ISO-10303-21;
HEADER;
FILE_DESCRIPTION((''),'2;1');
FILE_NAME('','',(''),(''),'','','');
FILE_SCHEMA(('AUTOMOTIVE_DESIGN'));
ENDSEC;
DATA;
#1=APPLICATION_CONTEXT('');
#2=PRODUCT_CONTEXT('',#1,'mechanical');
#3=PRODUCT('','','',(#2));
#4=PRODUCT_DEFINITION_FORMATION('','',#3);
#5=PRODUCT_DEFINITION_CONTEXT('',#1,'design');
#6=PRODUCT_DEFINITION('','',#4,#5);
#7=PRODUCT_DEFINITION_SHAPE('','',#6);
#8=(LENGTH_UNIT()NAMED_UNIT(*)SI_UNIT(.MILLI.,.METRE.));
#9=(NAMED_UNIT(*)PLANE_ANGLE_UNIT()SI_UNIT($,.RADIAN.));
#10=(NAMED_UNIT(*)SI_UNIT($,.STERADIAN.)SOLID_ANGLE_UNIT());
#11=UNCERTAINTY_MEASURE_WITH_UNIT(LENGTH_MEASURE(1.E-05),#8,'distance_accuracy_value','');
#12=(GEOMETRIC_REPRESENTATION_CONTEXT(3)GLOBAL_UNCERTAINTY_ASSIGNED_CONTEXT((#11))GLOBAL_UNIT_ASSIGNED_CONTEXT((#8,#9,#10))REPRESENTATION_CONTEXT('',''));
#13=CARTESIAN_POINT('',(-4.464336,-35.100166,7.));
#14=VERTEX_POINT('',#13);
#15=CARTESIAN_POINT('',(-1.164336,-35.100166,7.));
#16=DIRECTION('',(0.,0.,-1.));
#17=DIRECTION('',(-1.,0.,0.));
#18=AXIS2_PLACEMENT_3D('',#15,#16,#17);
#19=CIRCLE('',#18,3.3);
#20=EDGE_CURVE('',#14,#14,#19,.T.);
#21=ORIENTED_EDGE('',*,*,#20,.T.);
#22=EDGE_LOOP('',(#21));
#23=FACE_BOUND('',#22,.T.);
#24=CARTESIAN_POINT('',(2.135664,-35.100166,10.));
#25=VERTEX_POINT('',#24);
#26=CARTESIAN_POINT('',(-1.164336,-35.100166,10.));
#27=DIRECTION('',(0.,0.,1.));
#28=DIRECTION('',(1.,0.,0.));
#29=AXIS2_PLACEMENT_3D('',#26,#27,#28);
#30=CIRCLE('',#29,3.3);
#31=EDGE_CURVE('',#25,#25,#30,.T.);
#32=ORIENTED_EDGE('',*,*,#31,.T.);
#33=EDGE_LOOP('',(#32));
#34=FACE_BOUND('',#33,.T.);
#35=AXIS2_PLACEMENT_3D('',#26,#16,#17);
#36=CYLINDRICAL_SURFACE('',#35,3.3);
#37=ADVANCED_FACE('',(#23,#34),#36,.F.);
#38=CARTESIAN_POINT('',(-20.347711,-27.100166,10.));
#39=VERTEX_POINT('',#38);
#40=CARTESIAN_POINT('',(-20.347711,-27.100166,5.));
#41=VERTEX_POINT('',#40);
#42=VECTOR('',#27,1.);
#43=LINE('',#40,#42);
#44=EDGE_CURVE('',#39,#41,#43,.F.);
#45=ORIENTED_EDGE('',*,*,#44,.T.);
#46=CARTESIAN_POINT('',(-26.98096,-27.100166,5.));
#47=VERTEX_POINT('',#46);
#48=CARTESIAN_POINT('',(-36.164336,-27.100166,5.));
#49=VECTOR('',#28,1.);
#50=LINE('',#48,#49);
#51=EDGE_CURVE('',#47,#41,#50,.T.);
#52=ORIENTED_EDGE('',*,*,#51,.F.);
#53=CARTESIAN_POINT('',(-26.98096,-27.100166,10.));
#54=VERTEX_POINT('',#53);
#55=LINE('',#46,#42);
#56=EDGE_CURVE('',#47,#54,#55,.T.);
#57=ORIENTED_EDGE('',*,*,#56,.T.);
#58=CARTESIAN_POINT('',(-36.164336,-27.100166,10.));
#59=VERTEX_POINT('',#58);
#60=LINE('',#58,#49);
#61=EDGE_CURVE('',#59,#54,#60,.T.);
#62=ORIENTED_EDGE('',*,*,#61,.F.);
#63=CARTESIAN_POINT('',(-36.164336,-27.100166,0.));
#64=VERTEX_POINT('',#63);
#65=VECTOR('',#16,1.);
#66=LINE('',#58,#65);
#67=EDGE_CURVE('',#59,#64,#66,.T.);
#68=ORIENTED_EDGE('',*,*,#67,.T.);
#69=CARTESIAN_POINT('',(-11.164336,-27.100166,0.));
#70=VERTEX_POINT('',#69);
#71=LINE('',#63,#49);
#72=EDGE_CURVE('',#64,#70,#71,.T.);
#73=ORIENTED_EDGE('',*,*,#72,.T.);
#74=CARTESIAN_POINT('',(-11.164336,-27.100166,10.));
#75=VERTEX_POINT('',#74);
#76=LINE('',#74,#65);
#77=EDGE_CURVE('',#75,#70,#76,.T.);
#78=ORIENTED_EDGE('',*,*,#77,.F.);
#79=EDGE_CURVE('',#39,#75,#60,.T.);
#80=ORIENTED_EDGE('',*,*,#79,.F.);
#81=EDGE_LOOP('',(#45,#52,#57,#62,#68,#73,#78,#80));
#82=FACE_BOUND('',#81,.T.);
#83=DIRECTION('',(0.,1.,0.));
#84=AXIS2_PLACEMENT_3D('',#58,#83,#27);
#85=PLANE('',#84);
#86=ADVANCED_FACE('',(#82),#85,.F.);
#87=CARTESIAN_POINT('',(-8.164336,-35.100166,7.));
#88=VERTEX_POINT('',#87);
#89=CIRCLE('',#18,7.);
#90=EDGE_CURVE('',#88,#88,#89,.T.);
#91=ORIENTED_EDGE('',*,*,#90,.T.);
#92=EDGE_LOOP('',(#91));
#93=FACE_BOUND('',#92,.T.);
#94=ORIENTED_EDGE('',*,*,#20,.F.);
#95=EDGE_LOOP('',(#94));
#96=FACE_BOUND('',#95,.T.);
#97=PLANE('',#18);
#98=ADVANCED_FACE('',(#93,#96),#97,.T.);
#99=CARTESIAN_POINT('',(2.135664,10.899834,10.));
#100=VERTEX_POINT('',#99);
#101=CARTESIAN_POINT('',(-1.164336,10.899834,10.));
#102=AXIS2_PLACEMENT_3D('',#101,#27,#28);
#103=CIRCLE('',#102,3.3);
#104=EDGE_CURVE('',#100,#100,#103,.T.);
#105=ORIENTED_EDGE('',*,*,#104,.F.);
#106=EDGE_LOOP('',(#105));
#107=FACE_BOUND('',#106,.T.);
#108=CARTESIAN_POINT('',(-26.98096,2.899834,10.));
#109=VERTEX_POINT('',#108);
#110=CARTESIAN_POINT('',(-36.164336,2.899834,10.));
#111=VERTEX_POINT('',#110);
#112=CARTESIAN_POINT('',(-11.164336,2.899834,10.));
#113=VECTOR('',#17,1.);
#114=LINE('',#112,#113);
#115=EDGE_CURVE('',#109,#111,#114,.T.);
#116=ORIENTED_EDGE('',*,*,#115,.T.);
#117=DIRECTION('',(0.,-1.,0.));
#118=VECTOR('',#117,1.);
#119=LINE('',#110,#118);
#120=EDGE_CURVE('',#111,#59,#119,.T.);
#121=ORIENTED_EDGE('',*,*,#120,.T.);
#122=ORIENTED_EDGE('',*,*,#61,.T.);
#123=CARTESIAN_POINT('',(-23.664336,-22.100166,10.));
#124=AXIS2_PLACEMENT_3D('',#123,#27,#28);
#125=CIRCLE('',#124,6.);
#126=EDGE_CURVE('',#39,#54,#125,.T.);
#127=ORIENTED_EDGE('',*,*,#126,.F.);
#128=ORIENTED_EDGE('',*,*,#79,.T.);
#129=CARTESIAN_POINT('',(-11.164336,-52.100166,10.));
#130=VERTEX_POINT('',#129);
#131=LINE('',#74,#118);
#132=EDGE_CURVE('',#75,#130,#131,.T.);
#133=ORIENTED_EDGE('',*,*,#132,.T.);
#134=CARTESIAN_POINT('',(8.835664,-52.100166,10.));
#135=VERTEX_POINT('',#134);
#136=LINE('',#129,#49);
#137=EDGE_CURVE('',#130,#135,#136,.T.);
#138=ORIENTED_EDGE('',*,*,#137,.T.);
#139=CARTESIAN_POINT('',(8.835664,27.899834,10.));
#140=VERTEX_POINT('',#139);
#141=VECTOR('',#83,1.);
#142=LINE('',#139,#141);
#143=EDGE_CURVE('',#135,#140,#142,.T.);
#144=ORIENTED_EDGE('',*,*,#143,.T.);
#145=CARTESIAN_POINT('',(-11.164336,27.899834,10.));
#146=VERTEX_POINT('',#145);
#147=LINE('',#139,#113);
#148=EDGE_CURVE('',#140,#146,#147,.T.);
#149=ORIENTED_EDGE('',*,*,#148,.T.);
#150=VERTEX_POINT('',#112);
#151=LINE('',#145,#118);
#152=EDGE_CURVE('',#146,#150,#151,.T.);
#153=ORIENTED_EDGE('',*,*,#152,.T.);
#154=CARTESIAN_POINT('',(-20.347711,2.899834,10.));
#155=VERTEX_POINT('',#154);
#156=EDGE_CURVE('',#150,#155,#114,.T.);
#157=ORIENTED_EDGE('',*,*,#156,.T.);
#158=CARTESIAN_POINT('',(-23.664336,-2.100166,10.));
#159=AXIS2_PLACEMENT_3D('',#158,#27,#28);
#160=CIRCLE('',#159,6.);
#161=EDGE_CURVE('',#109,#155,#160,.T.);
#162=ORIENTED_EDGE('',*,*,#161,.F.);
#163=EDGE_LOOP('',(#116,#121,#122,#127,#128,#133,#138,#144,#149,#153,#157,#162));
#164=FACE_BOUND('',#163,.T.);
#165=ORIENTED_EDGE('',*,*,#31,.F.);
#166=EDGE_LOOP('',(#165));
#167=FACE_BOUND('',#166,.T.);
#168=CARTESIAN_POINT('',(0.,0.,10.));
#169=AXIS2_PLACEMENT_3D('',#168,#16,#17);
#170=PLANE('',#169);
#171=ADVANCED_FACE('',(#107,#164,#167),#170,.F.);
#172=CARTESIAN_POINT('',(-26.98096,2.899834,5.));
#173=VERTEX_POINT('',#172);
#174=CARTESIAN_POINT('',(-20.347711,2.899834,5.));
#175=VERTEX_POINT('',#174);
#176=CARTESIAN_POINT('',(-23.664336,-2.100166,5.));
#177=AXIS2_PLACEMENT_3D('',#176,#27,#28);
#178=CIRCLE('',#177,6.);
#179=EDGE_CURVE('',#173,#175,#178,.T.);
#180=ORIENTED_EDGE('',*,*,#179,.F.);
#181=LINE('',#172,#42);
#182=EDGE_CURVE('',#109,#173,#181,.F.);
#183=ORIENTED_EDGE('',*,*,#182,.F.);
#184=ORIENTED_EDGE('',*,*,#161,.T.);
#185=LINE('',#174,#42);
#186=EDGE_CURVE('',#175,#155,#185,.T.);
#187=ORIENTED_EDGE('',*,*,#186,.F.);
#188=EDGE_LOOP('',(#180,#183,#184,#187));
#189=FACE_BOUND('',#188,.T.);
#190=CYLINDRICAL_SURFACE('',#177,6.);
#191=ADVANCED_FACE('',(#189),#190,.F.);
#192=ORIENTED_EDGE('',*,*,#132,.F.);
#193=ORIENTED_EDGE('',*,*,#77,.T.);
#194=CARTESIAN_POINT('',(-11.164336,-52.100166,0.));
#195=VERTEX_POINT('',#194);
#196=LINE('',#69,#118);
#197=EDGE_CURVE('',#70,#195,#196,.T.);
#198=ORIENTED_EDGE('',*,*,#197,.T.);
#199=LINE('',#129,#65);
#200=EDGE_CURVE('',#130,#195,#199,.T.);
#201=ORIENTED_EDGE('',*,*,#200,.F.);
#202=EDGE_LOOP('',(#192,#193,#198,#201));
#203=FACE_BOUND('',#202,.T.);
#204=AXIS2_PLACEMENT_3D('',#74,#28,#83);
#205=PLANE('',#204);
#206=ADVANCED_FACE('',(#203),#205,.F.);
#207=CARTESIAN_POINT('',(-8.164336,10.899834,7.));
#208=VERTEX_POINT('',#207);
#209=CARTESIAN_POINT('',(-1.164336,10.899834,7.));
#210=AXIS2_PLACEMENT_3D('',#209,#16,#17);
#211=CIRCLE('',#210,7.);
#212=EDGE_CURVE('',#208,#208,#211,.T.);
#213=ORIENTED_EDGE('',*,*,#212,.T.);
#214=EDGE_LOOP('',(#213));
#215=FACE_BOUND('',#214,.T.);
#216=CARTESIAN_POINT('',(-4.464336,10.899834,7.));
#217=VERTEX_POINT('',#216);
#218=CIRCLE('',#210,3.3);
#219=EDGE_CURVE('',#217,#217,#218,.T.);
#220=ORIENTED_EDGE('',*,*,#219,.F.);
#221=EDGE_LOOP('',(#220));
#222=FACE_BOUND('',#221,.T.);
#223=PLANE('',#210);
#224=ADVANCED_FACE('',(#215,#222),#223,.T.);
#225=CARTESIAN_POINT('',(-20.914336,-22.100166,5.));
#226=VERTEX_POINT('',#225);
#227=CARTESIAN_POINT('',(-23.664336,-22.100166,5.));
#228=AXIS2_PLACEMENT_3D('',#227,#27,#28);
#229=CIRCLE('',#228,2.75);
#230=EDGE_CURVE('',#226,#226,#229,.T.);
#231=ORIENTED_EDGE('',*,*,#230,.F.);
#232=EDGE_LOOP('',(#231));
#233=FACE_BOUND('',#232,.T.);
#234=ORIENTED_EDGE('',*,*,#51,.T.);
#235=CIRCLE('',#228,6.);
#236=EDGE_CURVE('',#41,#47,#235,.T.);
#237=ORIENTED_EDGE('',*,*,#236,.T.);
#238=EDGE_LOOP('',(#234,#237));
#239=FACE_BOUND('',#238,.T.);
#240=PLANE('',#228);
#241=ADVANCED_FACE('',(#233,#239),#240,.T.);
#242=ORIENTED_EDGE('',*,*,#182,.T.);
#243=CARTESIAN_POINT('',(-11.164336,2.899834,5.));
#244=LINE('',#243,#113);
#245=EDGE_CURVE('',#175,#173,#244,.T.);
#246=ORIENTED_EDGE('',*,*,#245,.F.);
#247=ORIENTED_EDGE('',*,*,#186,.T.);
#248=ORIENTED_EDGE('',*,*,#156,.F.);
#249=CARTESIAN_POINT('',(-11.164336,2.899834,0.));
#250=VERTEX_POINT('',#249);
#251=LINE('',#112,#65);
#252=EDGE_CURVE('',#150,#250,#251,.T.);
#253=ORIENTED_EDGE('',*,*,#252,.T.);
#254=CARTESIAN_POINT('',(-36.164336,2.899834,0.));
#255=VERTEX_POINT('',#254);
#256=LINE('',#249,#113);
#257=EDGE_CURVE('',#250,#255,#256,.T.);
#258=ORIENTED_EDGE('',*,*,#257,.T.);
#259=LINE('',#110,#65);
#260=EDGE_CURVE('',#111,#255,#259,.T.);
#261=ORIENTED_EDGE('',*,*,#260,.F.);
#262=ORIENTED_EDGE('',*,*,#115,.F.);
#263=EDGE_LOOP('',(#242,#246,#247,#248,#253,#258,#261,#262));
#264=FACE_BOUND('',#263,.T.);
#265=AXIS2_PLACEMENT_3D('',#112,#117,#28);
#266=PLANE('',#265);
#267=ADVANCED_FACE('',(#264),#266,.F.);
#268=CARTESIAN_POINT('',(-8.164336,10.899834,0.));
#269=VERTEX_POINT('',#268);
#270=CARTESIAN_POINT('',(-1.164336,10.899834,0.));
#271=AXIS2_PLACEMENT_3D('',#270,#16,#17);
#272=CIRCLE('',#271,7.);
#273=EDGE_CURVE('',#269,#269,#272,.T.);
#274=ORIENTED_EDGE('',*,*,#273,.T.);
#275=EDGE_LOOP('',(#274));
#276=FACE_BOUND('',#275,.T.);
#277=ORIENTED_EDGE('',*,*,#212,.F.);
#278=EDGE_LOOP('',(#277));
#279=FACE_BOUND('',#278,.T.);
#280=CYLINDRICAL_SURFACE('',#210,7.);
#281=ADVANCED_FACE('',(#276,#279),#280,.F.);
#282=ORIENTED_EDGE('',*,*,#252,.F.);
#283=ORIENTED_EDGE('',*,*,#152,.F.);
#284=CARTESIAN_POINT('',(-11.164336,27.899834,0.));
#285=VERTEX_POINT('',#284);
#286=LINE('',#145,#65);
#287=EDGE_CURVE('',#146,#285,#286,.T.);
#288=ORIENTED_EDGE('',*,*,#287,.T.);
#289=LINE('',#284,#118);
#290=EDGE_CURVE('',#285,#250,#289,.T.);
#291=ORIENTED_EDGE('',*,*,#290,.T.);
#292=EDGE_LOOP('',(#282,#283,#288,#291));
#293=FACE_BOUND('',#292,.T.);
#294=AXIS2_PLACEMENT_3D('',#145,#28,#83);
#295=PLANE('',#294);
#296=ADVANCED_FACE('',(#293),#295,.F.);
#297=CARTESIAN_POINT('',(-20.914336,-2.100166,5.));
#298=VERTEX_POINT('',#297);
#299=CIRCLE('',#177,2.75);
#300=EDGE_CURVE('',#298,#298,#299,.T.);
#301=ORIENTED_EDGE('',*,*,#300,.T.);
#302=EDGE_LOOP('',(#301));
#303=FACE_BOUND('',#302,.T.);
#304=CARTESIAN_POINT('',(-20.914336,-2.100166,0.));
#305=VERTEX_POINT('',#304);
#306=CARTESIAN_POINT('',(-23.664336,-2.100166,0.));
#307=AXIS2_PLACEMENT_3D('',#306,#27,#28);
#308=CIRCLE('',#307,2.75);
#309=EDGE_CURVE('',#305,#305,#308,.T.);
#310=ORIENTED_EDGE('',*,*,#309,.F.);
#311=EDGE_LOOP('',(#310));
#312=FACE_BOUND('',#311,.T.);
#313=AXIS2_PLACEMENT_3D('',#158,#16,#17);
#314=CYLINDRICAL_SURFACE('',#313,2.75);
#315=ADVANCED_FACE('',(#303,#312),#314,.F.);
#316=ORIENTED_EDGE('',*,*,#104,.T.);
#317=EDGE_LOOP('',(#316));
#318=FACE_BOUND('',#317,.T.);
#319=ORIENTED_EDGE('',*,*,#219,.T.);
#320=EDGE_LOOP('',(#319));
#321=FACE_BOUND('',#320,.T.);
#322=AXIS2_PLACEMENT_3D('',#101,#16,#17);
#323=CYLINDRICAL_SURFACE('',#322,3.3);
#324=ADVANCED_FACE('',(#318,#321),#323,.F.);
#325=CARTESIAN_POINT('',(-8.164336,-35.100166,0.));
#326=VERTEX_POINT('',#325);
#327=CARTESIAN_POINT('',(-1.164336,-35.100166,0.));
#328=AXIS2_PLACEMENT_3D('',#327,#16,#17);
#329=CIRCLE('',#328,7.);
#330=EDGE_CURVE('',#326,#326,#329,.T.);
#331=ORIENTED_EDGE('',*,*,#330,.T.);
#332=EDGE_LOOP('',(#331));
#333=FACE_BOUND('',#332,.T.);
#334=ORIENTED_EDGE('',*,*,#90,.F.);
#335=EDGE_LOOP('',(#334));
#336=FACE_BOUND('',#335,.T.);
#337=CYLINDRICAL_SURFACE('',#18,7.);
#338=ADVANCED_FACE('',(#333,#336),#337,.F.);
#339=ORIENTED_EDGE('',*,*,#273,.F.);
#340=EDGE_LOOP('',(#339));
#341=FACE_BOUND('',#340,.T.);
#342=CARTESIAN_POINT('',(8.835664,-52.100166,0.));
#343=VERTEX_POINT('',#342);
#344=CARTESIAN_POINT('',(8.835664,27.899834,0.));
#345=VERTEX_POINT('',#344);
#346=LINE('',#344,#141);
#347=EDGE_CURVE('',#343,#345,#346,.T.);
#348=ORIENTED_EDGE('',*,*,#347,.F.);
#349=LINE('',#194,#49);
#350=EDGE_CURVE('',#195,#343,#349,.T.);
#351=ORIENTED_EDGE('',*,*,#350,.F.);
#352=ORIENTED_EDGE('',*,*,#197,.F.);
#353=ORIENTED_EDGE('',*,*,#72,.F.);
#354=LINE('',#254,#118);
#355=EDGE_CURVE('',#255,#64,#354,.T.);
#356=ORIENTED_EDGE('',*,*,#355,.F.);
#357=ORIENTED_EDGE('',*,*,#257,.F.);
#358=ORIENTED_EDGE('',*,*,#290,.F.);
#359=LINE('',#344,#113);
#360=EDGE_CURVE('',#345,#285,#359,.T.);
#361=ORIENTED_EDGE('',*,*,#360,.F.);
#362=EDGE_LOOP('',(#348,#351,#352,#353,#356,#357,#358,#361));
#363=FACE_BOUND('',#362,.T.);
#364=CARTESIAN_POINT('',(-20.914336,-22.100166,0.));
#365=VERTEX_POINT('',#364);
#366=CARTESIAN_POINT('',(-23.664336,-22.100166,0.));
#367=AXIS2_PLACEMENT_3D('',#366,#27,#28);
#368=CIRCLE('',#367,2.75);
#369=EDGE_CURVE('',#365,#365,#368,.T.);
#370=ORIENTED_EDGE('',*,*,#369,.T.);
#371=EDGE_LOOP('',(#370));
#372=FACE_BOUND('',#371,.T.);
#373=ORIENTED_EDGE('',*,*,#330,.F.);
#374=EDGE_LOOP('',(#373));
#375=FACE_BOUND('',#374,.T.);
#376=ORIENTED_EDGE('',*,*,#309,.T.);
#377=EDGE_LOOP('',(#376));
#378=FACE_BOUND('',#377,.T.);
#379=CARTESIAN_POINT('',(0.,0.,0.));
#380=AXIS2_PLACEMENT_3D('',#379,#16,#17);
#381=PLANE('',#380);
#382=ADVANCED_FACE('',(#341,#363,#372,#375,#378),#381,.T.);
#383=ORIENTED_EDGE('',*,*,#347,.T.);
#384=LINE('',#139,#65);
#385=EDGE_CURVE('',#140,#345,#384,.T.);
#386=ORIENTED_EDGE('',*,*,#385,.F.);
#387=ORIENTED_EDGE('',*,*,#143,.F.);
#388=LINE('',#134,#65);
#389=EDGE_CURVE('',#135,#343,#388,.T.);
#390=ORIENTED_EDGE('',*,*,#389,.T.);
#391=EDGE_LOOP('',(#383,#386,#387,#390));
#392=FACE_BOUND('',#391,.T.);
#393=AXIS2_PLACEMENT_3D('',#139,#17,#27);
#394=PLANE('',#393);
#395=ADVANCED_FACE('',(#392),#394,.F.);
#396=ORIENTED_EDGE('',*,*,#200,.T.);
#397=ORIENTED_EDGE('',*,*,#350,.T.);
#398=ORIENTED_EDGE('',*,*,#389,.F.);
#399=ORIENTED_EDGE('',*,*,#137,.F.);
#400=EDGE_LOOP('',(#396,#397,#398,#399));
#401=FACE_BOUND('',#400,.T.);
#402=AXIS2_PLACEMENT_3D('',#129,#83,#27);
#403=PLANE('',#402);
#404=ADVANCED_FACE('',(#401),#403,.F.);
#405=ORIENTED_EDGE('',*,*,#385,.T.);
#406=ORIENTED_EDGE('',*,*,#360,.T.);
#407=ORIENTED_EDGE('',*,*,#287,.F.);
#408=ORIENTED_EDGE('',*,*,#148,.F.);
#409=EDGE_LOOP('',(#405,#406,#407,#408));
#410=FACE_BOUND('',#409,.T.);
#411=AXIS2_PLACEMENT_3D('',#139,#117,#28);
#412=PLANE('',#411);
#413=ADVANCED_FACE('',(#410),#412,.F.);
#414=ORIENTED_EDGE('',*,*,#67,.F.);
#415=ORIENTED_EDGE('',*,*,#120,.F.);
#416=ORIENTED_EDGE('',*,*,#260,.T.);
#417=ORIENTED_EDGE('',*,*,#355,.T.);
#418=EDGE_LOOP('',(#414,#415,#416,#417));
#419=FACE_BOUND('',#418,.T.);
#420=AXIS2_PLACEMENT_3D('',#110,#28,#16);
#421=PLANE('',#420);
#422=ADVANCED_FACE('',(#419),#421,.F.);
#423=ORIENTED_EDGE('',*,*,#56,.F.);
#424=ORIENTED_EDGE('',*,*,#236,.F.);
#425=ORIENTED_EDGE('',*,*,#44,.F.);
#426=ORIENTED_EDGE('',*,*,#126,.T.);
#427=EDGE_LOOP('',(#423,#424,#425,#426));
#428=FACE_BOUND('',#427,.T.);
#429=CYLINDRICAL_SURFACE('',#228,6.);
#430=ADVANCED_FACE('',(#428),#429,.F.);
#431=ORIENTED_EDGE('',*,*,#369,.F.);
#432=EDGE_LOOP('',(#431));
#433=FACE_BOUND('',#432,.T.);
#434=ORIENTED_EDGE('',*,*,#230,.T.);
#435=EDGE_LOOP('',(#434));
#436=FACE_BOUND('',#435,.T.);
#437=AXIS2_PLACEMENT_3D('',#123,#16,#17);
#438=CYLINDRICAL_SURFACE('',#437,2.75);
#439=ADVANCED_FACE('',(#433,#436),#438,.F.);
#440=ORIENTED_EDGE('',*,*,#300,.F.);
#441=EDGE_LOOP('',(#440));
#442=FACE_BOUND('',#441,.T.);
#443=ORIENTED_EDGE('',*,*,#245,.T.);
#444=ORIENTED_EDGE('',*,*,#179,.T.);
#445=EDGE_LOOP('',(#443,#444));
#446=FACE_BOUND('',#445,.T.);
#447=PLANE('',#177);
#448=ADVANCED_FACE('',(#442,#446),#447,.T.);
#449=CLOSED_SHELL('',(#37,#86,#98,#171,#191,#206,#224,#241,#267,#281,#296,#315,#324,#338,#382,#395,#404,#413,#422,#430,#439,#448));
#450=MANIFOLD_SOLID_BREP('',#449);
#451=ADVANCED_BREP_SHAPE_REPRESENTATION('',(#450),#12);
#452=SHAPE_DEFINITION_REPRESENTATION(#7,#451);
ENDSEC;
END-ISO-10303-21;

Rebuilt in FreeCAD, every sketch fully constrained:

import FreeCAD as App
import Part
import Sketcher
from FreeCAD import Vector

doc = App.newDocument("Part")
body = doc.addObject("PartDesign::Body", "Body")

sketch1 = body.newObject("Sketcher::SketchObject", "Sketch")
sketch1.AttachmentSupport = (doc.getObject("XY_Plane"), [""])
sketch1.MapMode = "FlatFace"
sketch1.addGeometry([
    Part.LineSegment(Vector(8.835664, -52.100166, 0), Vector(8.835664, 27.899834, 0)),
    Part.LineSegment(Vector(8.835664, 27.899834, 0), Vector(-11.164336, 27.899834, 0)),
    Part.LineSegment(Vector(-11.164336, 27.899834, 0), Vector(-11.164336, 2.899834, 0)),
    Part.LineSegment(Vector(-11.164336, 2.899834, 0), Vector(-36.164336, 2.899834, 0)),
    Part.LineSegment(Vector(-36.164336, 2.899834, 0), Vector(-36.164336, -27.100166, 0)),
    Part.LineSegment(Vector(-36.164336, -27.100166, 0), Vector(-11.164336, -27.100166, 0)),
    Part.LineSegment(Vector(-11.164336, -27.100166, 0), Vector(-11.164336, -52.100166, 0)),
    Part.LineSegment(Vector(-11.164336, -52.100166, 0), Vector(8.835664, -52.100166, 0)),
    Part.Circle(Vector(-1.164336, -35.100166, 0), Vector(0, 0, 1), 3.3),
    Part.Circle(Vector(-23.664336, -22.100166, 0), Vector(0, 0, 1), 2.75),
    Part.Circle(Vector(-1.164336, 10.899834, 0), Vector(0, 0, 1), 3.3),
    Part.Circle(Vector(-23.664336, -2.100166, 0), Vector(0, 0, 1), 2.75),
], False)
sketch1.addConstraint([
    Sketcher.Constraint("Coincident", 0, 2, 1, 1),
    Sketcher.Constraint("Coincident", 1, 2, 2, 1),
    Sketcher.Constraint("Coincident", 2, 2, 3, 1),
    Sketcher.Constraint("Coincident", 3, 2, 4, 1),
    Sketcher.Constraint("Coincident", 4, 2, 5, 1),
    Sketcher.Constraint("Coincident", 5, 2, 6, 1),
    Sketcher.Constraint("Coincident", 6, 2, 7, 1),
    Sketcher.Constraint("Coincident", 7, 2, 0, 1),
    Sketcher.Constraint("Vertical", 0),
    Sketcher.Constraint("Horizontal", 1),
    Sketcher.Constraint("Vertical", 2),
    Sketcher.Constraint("Horizontal", 3),
    Sketcher.Constraint("Vertical", 4),
    Sketcher.Constraint("Horizontal", 5),
    Sketcher.Constraint("Vertical", 6),
    Sketcher.Constraint("Horizontal", 7),
    Sketcher.Constraint("Equal", 8, 10),
    Sketcher.Constraint("Equal", 9, 11),
    Sketcher.Constraint("Vertical", 8, 3, 10, 3),
    Sketcher.Constraint("Vertical", 9, 3, 11, 3),
    Sketcher.Constraint("Vertical", 2, 2, 5, 2),
    Sketcher.Constraint("Equal", 5, 2),
    Sketcher.Constraint("Equal", 2, 6),
    Sketcher.Constraint("Diameter", 8, 6.6),
    Sketcher.Constraint("Diameter", 9, 5.5),
    Sketcher.Constraint("DistanceX", 1, 2, 1, 1, 20.0),
    Sketcher.Constraint("DistanceX", 3, 2, 3, 1, 25.0),
    Sketcher.Constraint("DistanceY", 0, 1, 0, 2, 80.0),
    Sketcher.Constraint("DistanceY", 8, 3, 9, 3, 13.0),
    Sketcher.Constraint("DistanceY", 9, 3, 10, 3, 33.0),
    Sketcher.Constraint("DistanceY", 9, 3, 11, 3, 20.0),
    Sketcher.Constraint("DistanceX", 10, 3, 0, 2, 10.0),
    Sketcher.Constraint("DistanceY", 10, 3, 0, 2, 17.0),
    Sketcher.Constraint("DistanceX", 9, 3, 8, 3, 22.5),
    Sketcher.Constraint("DistanceX", 8, 3, -1, 1, 1.164336),
    Sketcher.Constraint("DistanceY", 8, 3, -1, 1, 35.100166),
])
pad1 = body.newObject("PartDesign::Pad", "Pad")
pad1.Profile = sketch1
pad1.Length = 10

sketch2 = body.newObject("Sketcher::SketchObject", "Sketch001")
sketch2.AttachmentSupport = (doc.getObject("XY_Plane"), [""])
sketch2.MapMode = "FlatFace"
sketch2.AttachmentOffset = App.Placement(Vector(0, 0, 10), App.Rotation())
sketch2.addGeometry([
    Part.Circle(Vector(-23.664336, -2.100166, 0), Vector(0, 0, 1), 6),
    Part.Circle(Vector(-23.664336, -22.100166, 0), Vector(0, 0, 1), 6),
], False)
sketch2.addConstraint([
    Sketcher.Constraint("Equal", 0, 1),
    Sketcher.Constraint("Vertical", 0, 3, 1, 3),
    Sketcher.Constraint("Diameter", 0, 12.0),
    Sketcher.Constraint("DistanceY", 1, 3, 0, 3, 20.0),
    Sketcher.Constraint("DistanceX", 0, 3, -1, 1, 23.664336),
    Sketcher.Constraint("DistanceY", 0, 3, -1, 1, 2.100166),
])
pocket1 = body.newObject("PartDesign::Pocket", "Pocket")
pocket1.Profile = sketch2
pocket1.Length = 5

sketch3 = body.newObject("Sketcher::SketchObject", "Sketch002")
sketch3.AttachmentSupport = (doc.getObject("XY_Plane"), [""])
sketch3.MapMode = "FlatFace"
sketch3.addGeometry([
    Part.Circle(Vector(-1.164336, 10.899834, 0), Vector(0, 0, 1), 7),
    Part.Circle(Vector(-1.164336, -35.100166, 0), Vector(0, 0, 1), 7),
], False)
sketch3.addConstraint([
    Sketcher.Constraint("Equal", 0, 1),
    Sketcher.Constraint("Vertical", 0, 3, 1, 3),
    Sketcher.Constraint("Diameter", 0, 14.0),
    Sketcher.Constraint("DistanceY", 1, 3, 0, 3, 46.0),
    Sketcher.Constraint("DistanceX", 0, 3, -1, 1, 1.164336),
    Sketcher.Constraint("DistanceY", -1, 1, 0, 3, 10.899834),
])
pocket2 = body.newObject("PartDesign::Pocket", "Pocket001")
pocket2.Profile = sketch3
pocket2.Length = 7
pocket2.Reversed = True

doc.recompute()
